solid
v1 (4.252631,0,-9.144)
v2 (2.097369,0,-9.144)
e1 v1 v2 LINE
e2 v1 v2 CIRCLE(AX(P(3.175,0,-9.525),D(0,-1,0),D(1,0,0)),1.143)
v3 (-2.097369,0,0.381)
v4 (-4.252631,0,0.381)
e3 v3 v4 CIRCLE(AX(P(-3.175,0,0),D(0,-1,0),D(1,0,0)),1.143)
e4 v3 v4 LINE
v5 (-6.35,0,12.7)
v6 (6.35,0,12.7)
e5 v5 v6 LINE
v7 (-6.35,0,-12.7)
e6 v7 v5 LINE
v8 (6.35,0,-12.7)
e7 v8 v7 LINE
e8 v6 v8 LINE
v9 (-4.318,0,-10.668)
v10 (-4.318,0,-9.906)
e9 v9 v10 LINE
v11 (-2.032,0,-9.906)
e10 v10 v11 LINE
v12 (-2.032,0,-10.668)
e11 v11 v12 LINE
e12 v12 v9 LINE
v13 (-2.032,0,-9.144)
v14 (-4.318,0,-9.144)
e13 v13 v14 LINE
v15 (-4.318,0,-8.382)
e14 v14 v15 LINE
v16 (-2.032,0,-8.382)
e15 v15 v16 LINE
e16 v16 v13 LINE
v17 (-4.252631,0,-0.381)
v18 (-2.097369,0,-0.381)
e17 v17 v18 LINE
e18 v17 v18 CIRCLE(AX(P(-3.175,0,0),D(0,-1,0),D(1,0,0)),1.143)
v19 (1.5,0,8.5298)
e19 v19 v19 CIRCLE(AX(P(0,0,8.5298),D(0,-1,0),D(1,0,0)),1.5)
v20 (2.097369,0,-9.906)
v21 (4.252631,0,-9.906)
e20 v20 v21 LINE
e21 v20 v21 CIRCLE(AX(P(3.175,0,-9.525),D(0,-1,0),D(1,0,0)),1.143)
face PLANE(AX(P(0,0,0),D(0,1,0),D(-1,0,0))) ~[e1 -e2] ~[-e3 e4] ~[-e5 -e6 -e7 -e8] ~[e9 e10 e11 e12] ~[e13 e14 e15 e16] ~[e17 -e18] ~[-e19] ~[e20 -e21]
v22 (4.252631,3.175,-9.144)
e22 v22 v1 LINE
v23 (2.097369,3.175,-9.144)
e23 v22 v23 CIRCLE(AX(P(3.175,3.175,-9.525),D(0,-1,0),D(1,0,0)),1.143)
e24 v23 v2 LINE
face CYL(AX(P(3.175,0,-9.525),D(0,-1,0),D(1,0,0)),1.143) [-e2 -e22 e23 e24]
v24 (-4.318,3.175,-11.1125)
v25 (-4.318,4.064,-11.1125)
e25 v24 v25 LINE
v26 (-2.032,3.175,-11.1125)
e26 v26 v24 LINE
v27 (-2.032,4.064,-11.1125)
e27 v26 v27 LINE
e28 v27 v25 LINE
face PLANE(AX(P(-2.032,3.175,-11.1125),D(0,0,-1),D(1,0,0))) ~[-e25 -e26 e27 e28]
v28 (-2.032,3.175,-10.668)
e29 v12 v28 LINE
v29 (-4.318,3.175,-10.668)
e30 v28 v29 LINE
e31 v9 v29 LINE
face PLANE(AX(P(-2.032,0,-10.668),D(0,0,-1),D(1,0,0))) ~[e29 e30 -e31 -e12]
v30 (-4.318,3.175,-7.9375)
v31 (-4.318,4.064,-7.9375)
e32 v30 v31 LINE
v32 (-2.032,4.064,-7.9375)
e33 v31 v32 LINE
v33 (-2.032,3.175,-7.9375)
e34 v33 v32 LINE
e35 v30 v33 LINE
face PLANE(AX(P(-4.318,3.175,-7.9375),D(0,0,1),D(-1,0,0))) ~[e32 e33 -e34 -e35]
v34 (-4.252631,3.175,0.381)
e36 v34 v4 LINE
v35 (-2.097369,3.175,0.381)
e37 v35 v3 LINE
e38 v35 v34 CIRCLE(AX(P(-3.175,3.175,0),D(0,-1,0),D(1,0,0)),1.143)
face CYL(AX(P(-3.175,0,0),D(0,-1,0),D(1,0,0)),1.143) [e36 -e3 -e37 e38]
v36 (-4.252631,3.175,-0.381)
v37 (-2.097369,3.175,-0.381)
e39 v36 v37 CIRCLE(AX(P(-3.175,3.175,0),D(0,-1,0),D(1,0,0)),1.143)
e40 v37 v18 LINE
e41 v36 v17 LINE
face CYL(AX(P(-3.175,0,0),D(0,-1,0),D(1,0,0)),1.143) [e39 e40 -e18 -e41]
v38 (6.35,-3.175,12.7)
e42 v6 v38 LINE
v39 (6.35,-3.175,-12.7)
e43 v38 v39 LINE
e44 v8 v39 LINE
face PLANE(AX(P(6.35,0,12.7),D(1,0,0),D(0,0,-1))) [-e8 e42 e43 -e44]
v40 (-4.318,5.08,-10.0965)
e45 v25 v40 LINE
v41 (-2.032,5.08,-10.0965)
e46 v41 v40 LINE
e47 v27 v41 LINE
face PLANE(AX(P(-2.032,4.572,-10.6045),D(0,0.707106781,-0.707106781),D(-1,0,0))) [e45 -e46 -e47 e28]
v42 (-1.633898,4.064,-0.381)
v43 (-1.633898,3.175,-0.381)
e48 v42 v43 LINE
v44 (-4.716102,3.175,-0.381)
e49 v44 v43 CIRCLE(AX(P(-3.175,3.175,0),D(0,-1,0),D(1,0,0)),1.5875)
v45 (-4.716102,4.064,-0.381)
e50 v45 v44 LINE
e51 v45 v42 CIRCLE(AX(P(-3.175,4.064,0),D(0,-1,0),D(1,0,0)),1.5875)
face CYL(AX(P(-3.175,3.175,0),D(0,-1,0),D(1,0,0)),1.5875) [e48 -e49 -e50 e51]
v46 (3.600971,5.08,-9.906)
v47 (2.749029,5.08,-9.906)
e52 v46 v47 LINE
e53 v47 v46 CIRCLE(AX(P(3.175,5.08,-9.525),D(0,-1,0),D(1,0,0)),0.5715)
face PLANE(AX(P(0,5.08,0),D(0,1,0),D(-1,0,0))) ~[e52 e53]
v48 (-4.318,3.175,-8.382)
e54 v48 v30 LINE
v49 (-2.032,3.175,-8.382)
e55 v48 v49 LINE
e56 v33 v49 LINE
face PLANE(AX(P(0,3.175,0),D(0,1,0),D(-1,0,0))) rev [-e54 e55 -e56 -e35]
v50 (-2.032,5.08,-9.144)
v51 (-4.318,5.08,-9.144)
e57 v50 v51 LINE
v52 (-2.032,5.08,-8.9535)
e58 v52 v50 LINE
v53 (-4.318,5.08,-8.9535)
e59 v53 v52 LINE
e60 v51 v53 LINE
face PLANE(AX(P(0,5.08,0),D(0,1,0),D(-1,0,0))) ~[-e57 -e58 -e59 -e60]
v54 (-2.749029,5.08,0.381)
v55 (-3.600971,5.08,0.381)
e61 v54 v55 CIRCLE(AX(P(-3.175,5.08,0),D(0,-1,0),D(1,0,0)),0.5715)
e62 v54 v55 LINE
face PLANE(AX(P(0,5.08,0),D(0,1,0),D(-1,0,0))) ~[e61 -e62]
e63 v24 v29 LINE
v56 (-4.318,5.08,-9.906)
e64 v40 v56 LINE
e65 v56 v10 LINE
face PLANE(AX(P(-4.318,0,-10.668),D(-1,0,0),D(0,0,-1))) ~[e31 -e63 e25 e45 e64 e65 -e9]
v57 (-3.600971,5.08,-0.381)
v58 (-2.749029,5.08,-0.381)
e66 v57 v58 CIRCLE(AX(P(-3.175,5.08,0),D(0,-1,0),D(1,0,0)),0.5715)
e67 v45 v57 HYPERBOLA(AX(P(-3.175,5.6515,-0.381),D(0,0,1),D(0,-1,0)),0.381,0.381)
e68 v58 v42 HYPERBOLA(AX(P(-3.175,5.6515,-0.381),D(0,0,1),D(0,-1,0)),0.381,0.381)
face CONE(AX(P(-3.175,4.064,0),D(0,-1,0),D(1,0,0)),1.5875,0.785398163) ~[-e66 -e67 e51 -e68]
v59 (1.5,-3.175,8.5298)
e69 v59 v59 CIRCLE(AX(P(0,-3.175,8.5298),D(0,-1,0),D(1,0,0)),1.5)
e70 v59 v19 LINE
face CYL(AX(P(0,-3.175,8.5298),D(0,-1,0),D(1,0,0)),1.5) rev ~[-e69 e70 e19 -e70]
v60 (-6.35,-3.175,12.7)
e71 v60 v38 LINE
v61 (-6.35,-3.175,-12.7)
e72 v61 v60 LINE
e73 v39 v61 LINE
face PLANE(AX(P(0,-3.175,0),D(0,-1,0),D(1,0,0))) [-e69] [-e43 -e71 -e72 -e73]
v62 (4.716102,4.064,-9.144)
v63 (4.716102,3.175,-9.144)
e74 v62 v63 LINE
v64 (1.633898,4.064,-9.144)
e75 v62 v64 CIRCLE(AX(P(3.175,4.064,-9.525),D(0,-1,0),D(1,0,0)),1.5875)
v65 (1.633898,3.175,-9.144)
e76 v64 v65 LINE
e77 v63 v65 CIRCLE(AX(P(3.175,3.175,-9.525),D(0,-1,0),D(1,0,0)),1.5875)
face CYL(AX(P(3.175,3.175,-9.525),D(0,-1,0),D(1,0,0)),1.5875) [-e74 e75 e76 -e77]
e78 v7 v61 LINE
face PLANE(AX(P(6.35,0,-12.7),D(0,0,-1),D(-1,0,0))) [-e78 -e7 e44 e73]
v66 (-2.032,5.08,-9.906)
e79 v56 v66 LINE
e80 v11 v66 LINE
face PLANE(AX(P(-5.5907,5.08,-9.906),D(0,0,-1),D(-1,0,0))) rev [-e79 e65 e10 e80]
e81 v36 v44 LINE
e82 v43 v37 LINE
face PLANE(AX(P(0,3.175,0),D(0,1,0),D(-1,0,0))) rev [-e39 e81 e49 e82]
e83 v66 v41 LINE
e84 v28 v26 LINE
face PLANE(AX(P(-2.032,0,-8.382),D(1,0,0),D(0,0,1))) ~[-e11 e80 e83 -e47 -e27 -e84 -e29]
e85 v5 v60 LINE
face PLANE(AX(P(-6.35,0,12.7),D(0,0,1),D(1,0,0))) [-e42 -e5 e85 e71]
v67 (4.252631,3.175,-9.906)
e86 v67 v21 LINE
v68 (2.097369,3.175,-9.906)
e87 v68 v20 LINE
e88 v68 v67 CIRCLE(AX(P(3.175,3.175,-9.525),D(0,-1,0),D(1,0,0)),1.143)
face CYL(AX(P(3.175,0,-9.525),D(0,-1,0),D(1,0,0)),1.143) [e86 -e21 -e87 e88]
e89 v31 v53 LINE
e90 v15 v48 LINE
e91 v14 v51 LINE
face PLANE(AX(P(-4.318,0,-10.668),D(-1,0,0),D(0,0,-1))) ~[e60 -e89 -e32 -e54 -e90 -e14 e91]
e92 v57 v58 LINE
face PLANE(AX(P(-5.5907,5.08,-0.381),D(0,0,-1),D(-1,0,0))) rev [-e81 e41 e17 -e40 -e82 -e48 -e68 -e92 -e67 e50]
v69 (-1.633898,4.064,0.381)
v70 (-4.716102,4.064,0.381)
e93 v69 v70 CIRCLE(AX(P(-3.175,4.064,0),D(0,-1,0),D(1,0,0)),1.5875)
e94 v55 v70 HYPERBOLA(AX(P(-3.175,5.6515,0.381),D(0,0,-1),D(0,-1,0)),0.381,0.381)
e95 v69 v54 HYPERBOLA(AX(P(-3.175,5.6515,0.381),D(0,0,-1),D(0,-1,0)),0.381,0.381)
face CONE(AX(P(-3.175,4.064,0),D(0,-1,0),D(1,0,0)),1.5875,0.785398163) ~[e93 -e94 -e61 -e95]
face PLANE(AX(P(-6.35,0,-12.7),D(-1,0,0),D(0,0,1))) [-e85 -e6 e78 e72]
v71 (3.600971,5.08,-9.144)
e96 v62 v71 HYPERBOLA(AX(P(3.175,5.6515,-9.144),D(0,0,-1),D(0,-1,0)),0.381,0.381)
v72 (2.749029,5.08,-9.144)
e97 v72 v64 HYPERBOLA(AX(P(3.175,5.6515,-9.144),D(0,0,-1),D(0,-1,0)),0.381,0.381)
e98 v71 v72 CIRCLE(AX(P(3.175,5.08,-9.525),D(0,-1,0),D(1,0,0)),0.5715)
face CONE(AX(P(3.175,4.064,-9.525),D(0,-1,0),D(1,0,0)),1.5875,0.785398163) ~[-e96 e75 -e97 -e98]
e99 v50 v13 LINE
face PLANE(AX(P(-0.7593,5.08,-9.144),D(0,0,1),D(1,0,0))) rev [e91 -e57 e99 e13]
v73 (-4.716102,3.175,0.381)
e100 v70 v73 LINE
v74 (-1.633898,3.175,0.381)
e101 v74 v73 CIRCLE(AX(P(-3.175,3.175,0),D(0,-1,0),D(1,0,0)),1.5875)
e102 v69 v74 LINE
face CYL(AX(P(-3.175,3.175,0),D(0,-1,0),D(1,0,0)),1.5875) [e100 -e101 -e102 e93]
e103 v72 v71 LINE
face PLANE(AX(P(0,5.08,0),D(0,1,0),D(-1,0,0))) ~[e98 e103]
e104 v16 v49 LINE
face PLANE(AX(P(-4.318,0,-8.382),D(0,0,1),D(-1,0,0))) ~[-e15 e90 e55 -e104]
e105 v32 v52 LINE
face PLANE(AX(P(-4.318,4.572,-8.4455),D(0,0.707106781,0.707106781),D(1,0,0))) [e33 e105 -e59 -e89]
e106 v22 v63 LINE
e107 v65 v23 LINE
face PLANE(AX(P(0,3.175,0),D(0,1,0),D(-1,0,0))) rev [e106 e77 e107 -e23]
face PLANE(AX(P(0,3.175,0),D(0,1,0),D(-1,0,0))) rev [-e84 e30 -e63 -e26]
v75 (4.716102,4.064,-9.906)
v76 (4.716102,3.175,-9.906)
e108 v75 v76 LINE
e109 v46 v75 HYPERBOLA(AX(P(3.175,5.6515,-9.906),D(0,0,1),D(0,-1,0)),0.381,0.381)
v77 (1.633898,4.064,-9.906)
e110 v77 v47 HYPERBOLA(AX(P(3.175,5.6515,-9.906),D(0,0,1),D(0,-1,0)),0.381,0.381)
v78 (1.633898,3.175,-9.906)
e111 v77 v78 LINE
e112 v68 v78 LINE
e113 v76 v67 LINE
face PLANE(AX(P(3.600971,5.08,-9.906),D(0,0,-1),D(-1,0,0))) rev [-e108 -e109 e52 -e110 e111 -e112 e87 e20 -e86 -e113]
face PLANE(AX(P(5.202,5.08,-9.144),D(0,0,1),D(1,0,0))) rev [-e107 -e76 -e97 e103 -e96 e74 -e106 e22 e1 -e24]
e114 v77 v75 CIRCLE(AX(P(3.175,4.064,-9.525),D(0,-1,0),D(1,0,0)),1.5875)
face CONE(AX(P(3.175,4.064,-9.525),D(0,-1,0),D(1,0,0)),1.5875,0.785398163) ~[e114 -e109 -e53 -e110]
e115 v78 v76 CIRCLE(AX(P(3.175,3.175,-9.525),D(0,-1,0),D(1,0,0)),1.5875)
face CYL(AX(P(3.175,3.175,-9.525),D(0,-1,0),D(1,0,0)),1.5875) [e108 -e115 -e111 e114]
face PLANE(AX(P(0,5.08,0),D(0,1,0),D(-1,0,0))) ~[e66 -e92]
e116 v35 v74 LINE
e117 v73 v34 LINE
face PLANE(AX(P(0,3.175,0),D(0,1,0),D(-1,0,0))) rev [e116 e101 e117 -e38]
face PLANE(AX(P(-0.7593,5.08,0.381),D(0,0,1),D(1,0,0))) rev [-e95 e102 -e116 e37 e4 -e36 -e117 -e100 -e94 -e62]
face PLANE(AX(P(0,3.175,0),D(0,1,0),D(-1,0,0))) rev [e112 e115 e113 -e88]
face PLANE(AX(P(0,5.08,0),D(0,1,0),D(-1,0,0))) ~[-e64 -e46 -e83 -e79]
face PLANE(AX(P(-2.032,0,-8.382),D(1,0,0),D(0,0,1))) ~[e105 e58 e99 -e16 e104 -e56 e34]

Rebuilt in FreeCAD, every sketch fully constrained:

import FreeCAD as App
import Part
import Sketcher

V = App.Vector
Q = App.Units.Quantity


def edges_at(feature, points):
    """Names of the edges that pass closest to the given points."""
    edges = feature.Shape.Edges
    near = lambda p: min(range(len(edges)), key=lambda i: edges[i].distToShape(Part.Vertex(*p))[0])
    return sorted({f"Edge{near(p) + 1}" for p in points})


def add_polygon(sketch, points):
    """Adds a closed chain of lines whose ends are joined by coincident constraints."""
    first, n = sketch.GeometryCount, len(points)
    for a, b in zip(points, points[1:] + points[:1]):
        sketch.addGeometry(Part.LineSegment(App.Vector(*a, 0), App.Vector(*b, 0)), False)
    for i in range(n):
        sketch.addConstraint(Sketcher.Constraint("Coincident", first + i, 2, first + (i + 1) % n, 1))

doc = App.newDocument("Part")
body = doc.addObject("PartDesign::Body", "Body")

# Sketch on XZ plane
sketch1 = doc.addObject("Sketcher::SketchObject", "Sketch")
body.addObject(sketch1)
sketch1.AttachmentSupport = (doc.XZ_Plane, [""])
sketch1.MapMode = "FlatFace"
add_polygon(sketch1, [(-6, 13), (6, 13), (6, -13), (-6, -13)])  # lines 0-3
sketch1.addConstraint(Sketcher.Constraint("Horizontal", 0))
sketch1.addConstraint(Sketcher.Constraint("Vertical", 1))
sketch1.addConstraint(Sketcher.Constraint("Horizontal", 2))
sketch1.addConstraint(Sketcher.Constraint("Vertical", 3))
sketch1.addConstraint(Sketcher.Constraint("Symmetric", 0, 2, 2, 2, -1, 1))
sketch1.addConstraint(Sketcher.Constraint("DistanceY", 1, 2, 1, 1, Q("1 in")))
sketch1.addConstraint(Sketcher.Constraint("DistanceX", 0, 1, 0, 2, Q("0.5 in")))
pad1 = doc.addObject("PartDesign::Pad", "Pad")
body.addObject(pad1)
pad1.Profile = sketch1
pad1.Length = Q("0.125 in")

# Sketch on XZ plane
sketch2 = doc.addObject("Sketcher::SketchObject", "Sketch001")
body.addObject(sketch2)
sketch2.AttachmentSupport = (doc.XZ_Plane, [""])
sketch2.MapMode = "FlatFace"
sketch2.AttachmentOffset = App.Placement(V(0, 0, 0.125 * 25.4), App.Rotation())
sketch2.addGeometry(Part.Circle(V(0, 8.5, 0), V(0, 0, 1), 1.5), False)
sketch2.addConstraint(Sketcher.Constraint("PointOnObject", 0, 3, -2))
sketch2.addConstraint(Sketcher.Constraint("Diameter", 0, Q("0.1181 in")))
sketch2.addConstraint(Sketcher.Constraint("DistanceY", -1, 1, 0, 3, 8.5298))
pocket1 = doc.addObject("PartDesign::Pocket", "Pocket")
body.addObject(pocket1)
pocket1.Profile = sketch2
pocket1.Length = Q("0.125 in")

# Sketch on XZ plane
sketch3 = doc.addObject("Sketcher::SketchObject", "Sketch002")
body.addObject(sketch3)
sketch3.AttachmentSupport = (doc.XZ_Plane, [""])
sketch3.MapMode = "FlatFace"
sketch3.AttachmentOffset = App.Placement(V(0, 0, 0.125 * 25.4), App.Rotation())
sketch3.addGeometry(Part.Circle(V(3.2, -9.5, 0), V(0, 0, 1), 1.1), False)  # 0
sketch3.addGeometry(Part.Circle(V(-3.2, 0, 0), V(0, 0, 1), 1.1), False)  # 1
add_polygon(sketch3, [(-2, -8.4), (-4.3, -8.4), (-4.3, -10.7), (-2, -10.7)])  # lines 2-5
sketch3.addConstraint(Sketcher.Constraint("Horizontal", 2))
sketch3.addConstraint(Sketcher.Constraint("Vertical", 3))
sketch3.addConstraint(Sketcher.Constraint("Horizontal", 4))
sketch3.addConstraint(Sketcher.Constraint("Vertical", 5))
sketch3.addConstraint(Sketcher.Constraint("Equal", 0, 1))
sketch3.addConstraint(Sketcher.Constraint("PointOnObject", 1, 3, -1))
sketch3.addConstraint(Sketcher.Constraint("Equal", 4, 3))
sketch3.addConstraint(Sketcher.Constraint("Diameter", 0, Q("0.09 in")))
sketch3.addConstraint(Sketcher.Constraint("DistanceX", 2, 2, 2, 1, Q("0.09 in")))
sketch3.addConstraint(Sketcher.Constraint("DistanceX", 2, 2, -1, 1, Q("0.17 in")))
sketch3.addConstraint(Sketcher.Constraint("DistanceY", 2, 2, -1, 1, Q("0.33 in")))
sketch3.addConstraint(Sketcher.Constraint("DistanceX", 1, 3, 0, 3, Q("0.25 in")))
sketch3.addConstraint(Sketcher.Constraint("DistanceX", -1, 1, 0, 3, Q("0.125 in")))
sketch3.addConstraint(Sketcher.Constraint("DistanceY", 0, 3, -1, 1, Q("0.375 in")))
pad2 = doc.addObject("PartDesign::Pad", "Pad001")
body.addObject(pad2)
pad2.Profile = sketch3
pad2.Length = Q("0.125 in")

# Sketch on XZ plane
sketch4 = doc.addObject("Sketcher::SketchObject", "Sketch003")
body.addObject(sketch4)
sketch4.AttachmentSupport = (doc.XZ_Plane, [""])
sketch4.MapMode = "FlatFace"
sketch4.AttachmentOffset = App.Placement(V(0, 0, 0.25 * 25.4), App.Rotation())
add_polygon(sketch4, [(-4.3, -11.1), (-2, -11.1), (-2, -7.9), (-4.3, -7.9)])  # lines 0-3
sketch4.addGeometry(Part.Circle(V(-3.2, 0, 0), V(0, 0, 1), 1.6), False)  # 4
sketch4.addGeometry(Part.Circle(V(3.2, -9.5, 0), V(0, 0, 1), 1.6), False)  # 5
sketch4.addConstraint(Sketcher.Constraint("Horizontal", 0))
sketch4.addConstraint(Sketcher.Constraint("Vertical", 1))
sketch4.addConstraint(Sketcher.Constraint("Horizontal", 2))
sketch4.addConstraint(Sketcher.Constraint("Vertical", 3))
sketch4.addConstraint(Sketcher.Constraint("Equal", 4, 5))
sketch4.addConstraint(Sketcher.Constraint("PointOnObject", 4, 3, -1))
sketch4.addConstraint(Sketcher.Constraint("Diameter", 4, Q("0.125 in")))
sketch4.addConstraint(Sketcher.Constraint("DistanceX", 0, 1, 0, 2, Q("0.09 in")))
sketch4.addConstraint(Sketcher.Constraint("DistanceY", 1, 1, 1, 2, Q("0.125 in")))
sketch4.addConstraint(Sketcher.Constraint("DistanceX", 4, 3, -1, 1, Q("0.125 in")))
sketch4.addConstraint(Sketcher.Constraint("DistanceX", -1, 1, 5, 3, Q("0.125 in")))
sketch4.addConstraint(Sketcher.Constraint("DistanceX", 0, 2, -1, 1, Q("0.08 in")))
sketch4.addConstraint(Sketcher.Constraint("DistanceY", 5, 3, -1, 1, Q("0.375 in")))
sketch4.addConstraint(Sketcher.Constraint("DistanceY", 0, 2, -1, 1, Q("0.4375 in")))
pad3 = doc.addObject("PartDesign::Pad", "Pad002")
body.addObject(pad3)
pad3.Profile = sketch4
pad3.Length = Q("0.075 in")
doc.recompute()

chamfer = doc.addObject("PartDesign::Chamfer", "Chamfer")
body.addObject(chamfer)
chamfer.Base = (pad3, edges_at(pad3, [
    (-4.763, -8.255, 0),
    (1.587, -8.255, -9.525),
    (-3.175, -8.255, -7.938),
    (-3.175, -8.255, -11.113),
]))
chamfer.Size = Q("0.04 in")

# Sketch on XZ plane
sketch5 = doc.addObject("Sketcher::SketchObject", "Sketch004")
body.addObject(sketch5)
sketch5.AttachmentSupport = (doc.XZ_Plane, [""])
sketch5.MapMode = "FlatFace"
sketch5.AttachmentOffset = App.Placement(V(0, 0, 0.325 * 25.4), App.Rotation())
add_polygon(sketch5, [(5.2, -9.9), (5.2, -9.1), (1.1, -9.1), (1.1, -9.9)])  # lines 0-3
add_polygon(sketch5, [(-0.8, -0.4), (-0.8, 0.4), (-5.6, 0.4), (-5.6, -0.4)])  # lines 4-7
add_polygon(sketch5, [(-5.6, -9.1), (-5.6, -9.9), (-0.8, -9.9), (-0.8, -9.1)])  # lines 8-11
sketch5.addConstraint(Sketcher.Constraint("Vertical", 0))
sketch5.addConstraint(Sketcher.Constraint("Horizontal", 1))
sketch5.addConstraint(Sketcher.Constraint("Vertical", 2))
sketch5.addConstraint(Sketcher.Constraint("Horizontal", 3))
sketch5.addConstraint(Sketcher.Constraint("Vertical", 4))
sketch5.addConstraint(Sketcher.Constraint("Horizontal", 5))
sketch5.addConstraint(Sketcher.Constraint("Vertical", 6))
sketch5.addConstraint(Sketcher.Constraint("Horizontal", 7))
sketch5.addConstraint(Sketcher.Constraint("Vertical", 8))
sketch5.addConstraint(Sketcher.Constraint("Horizontal", 9))
sketch5.addConstraint(Sketcher.Constraint("Vertical", 10))
sketch5.addConstraint(Sketcher.Constraint("Horizontal", 11))
sketch5.addConstraint(Sketcher.Constraint("Horizontal", 3, 2, 8, 2))
sketch5.addConstraint(Sketcher.Constraint("Horizontal", 1, 2, 10, 2))
sketch5.addConstraint(Sketcher.Constraint("Vertical", 6, 2, 8, 2))
sketch5.addConstraint(Sketcher.Constraint("Vertical", 7, 2, 9, 2))
sketch5.addConstraint(Sketcher.Constraint("Equal", 2, 4))
sketch5.addConstraint(Sketcher.Constraint("DistanceY", 0, 1, 0, 2, Q("0.03 in")))
sketch5.addConstraint(Sketcher.Constraint("DistanceY", 0, 2, -1, 1, Q("0.36 in")))
sketch5.addConstraint(Sketcher.Constraint("DistanceX", 1, 2, 1, 1, Q("0.1596 in")))
sketch5.addConstraint(Sketcher.Constraint("DistanceY", -1, 1, 4, 2, Q("0.015 in")))
sketch5.addConstraint(Sketcher.Constraint("DistanceX", 5, 2, 5, 1, 4.8314))
sketch5.addConstraint(Sketcher.Constraint("DistanceX", -1, 1, 0, 2, Q("0.2048 in")))
sketch5.addConstraint(Sketcher.Constraint("DistanceX", 4, 2, -1, 1, Q("0.0299 in")))
pocket2 = doc.addObject("PartDesign::Pocket", "Pocket001")
body.addObject(pocket2)
pocket2.Profile = sketch5
pocket2.Length = Q("0.2 in")
doc.recompute()

datumplane = doc.addObject("PartDesign::Plane", "DatumPlane")
body.addObject(datumplane)
datumplane.AttachmentSupport = (doc.XZ_Plane, [""])
datumplane.MapMode = "FlatFace"
datumplane.AttachmentOffset = App.Placement(V(0, 0, 0.0625 * 25.4), App.Rotation())
mirrored = doc.addObject("PartDesign::Mirrored", "Mirrored")
body.addObject(mirrored)
mirrored.Originals = [pad2, pad3, chamfer, pocket2]
mirrored.MirrorPlane = (datumplane, [""])
body.Tip = mirrored

# Sketch on XZ plane
sketch6 = doc.addObject("Sketcher::SketchObject", "Sketch005")
body.addObject(sketch6)
sketch6.AttachmentSupport = (doc.XZ_Plane, [""])
sketch6.MapMode = "FlatFace"
sketch6.AttachmentOffset = App.Placement(V(0, 0, 0.125 * 25.4), App.Rotation())
add_polygon(sketch6, [(6, 13), (-6, 13), (-6, -13), (6, -13)])  # lines 0-3
sketch6.addConstraint(Sketcher.Constraint("Horizontal", 0))
sketch6.addConstraint(Sketcher.Constraint("Vertical", 1))
sketch6.addConstraint(Sketcher.Constraint("Horizontal", 2))
sketch6.addConstraint(Sketcher.Constraint("Vertical", 3))
sketch6.addConstraint(Sketcher.Constraint("Symmetric", 0, 2, 2, 2, -1, 1))
sketch6.addConstraint(Sketcher.Constraint("DistanceY", 1, 2, 1, 1, Q("1 in")))
sketch6.addConstraint(Sketcher.Constraint("DistanceX", 0, 2, 0, 1, Q("0.5 in")))
pocket3 = doc.addObject("PartDesign::Pocket", "Pocket002")
body.addObject(pocket3)
pocket3.Profile = sketch6
pocket3.Length = Q("0.2375 in")
pocket3.Reversed = True

doc.recompute()
